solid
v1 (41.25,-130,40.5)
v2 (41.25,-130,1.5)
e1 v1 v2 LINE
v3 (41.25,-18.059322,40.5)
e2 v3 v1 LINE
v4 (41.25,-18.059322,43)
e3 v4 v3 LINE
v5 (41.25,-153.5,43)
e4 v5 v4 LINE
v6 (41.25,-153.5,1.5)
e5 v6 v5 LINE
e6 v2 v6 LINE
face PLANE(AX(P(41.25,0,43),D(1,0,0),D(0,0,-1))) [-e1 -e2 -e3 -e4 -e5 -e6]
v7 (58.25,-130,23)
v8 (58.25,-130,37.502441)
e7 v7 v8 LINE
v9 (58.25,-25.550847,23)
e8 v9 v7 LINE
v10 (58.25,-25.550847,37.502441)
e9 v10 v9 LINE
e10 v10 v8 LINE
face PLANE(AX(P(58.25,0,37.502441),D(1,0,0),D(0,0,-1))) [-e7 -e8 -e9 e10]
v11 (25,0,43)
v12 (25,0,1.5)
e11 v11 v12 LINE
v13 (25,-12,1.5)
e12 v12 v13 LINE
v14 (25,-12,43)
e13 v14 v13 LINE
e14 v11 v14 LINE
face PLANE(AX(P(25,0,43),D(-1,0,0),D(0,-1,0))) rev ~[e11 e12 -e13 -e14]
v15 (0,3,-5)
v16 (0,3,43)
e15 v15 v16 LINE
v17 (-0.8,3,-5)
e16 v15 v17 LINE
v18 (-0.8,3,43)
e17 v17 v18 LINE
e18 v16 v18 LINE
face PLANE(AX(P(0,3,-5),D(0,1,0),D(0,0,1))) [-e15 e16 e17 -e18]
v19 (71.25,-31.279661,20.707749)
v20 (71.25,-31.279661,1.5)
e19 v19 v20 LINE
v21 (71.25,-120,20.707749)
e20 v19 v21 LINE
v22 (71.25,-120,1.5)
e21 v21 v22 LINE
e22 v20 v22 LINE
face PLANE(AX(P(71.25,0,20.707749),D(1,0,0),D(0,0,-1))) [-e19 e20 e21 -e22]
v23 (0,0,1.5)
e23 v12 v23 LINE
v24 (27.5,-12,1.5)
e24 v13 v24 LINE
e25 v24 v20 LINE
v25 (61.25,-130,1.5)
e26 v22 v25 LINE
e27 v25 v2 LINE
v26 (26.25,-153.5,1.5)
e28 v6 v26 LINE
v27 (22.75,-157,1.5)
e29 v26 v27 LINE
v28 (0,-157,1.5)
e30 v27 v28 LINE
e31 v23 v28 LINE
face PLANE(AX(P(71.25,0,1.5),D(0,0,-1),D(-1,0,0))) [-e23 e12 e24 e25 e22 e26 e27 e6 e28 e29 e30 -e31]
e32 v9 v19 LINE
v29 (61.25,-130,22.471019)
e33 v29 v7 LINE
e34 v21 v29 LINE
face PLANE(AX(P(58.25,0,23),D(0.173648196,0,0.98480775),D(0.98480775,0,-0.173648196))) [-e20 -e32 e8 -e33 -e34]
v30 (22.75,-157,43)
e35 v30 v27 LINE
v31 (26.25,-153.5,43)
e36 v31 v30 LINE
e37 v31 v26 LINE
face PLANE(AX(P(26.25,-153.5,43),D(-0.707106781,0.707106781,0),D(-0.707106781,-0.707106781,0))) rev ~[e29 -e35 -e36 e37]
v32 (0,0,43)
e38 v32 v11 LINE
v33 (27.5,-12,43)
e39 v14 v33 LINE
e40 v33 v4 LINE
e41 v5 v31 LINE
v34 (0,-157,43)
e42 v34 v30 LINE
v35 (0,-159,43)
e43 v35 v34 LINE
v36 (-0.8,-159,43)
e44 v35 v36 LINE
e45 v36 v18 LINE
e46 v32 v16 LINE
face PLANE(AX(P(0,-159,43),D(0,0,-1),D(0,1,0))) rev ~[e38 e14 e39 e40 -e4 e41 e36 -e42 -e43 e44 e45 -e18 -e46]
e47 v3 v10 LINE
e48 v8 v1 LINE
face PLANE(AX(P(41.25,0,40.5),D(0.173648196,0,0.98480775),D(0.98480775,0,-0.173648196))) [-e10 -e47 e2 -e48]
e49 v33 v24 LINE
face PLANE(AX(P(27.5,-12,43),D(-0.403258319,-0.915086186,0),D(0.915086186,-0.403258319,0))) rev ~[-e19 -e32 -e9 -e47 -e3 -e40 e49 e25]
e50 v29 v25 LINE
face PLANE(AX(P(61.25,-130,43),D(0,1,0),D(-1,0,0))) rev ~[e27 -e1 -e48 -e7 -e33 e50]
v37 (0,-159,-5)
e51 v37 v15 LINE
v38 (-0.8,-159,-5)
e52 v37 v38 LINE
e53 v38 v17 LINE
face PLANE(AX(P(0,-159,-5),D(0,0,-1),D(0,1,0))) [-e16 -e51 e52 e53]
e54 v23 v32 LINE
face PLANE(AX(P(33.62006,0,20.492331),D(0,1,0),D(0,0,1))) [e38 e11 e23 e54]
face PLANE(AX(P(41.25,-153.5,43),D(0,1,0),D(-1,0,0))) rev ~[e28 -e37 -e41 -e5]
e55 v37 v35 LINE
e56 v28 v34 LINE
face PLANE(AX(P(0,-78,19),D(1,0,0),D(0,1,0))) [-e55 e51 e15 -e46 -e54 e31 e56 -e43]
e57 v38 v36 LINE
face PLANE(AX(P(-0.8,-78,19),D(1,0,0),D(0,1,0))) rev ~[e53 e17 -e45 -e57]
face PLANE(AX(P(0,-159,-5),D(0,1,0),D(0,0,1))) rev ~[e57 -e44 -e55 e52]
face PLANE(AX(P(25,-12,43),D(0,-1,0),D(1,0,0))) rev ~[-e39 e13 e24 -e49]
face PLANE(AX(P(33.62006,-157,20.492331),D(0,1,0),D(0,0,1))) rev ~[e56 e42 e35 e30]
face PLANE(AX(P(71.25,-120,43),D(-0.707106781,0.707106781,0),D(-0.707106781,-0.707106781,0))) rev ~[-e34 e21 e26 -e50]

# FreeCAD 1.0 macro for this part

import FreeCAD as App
import Part
import Sketcher
Q = App.Units.Quantity

doc = App.newDocument("Part")
body = doc.addObject("PartDesign::Body", "Body")

sketch1 = body.newObject("Sketcher::SketchObject", "Sketch")
sketch1.AttachmentSupport = (doc.getObject("YZ_Plane"), [""])
sketch1.MapMode = "FlatFace"
sketch1.addGeometry([
    Part.LineSegment(App.Vector(-159, 43, 0), App.Vector(-159, -5, 0)),
    Part.LineSegment(App.Vector(-159, -5, 0), App.Vector(3, -5, 0)),
    Part.LineSegment(App.Vector(3, -5, 0), App.Vector(3, 43, 0)),
    Part.LineSegment(App.Vector(3, 43, 0), App.Vector(-159, 43, 0)),
], False)
sketch1.addConstraint([
    Sketcher.Constraint("Coincident", 0, 2, 1, 1),
    Sketcher.Constraint("Coincident", 1, 2, 2, 1),
    Sketcher.Constraint("Coincident", 2, 2, 3, 1),
    Sketcher.Constraint("Coincident", 3, 2, 0, 1),
    Sketcher.Constraint("Vertical", 0),
    Sketcher.Constraint("Horizontal", 1),
    Sketcher.Constraint("Vertical", 2),
    Sketcher.Constraint("Horizontal", 3),
    Sketcher.Constraint("DistanceX", 1, 1, 1, 2, Q("162 mm")),
    Sketcher.Constraint("DistanceY", 0, 2, 0, 1, Q("48 mm")),
    Sketcher.Constraint("DistanceX", 0, 2, -1, 1, Q("159 mm")),
    Sketcher.Constraint("DistanceY", 0, 2, -1, 1, Q("5 mm")),
])
pad1 = body.newObject("PartDesign::Pad", "Pad")
pad1.Profile = sketch1
pad1.Length = 0.8
pad1.Reversed = True

sketch2 = body.newObject("Sketcher::SketchObject", "Sketch001")
sketch2.AttachmentSupport = (doc.getObject("XZ_Plane"), [""])
sketch2.MapMode = "FlatFace"
sketch2.addGeometry([
    Part.LineSegment(App.Vector(0, 1.5, 0), App.Vector(0, 43, 0)),
    Part.LineSegment(App.Vector(0, 43, 0), App.Vector(41.2, 43, 0)),
    Part.LineSegment(App.Vector(41.2, 43, 0), App.Vector(41.2, 40.5, 0)),
    Part.LineSegment(App.Vector(41.2, 40.5, 0), App.Vector(58.2, 37.5, 0)),
    Part.LineSegment(App.Vector(58.2, 37.5, 0), App.Vector(58.2, 23, 0)),
    Part.LineSegment(App.Vector(58.2, 23, 0), App.Vector(71.2, 20.7, 0)),
    Part.LineSegment(App.Vector(71.2, 20.7, 0), App.Vector(71.2, 1.5, 0)),
    Part.LineSegment(App.Vector(71.2, 1.5, 0), App.Vector(0, 1.5, 0)),
], False)
sketch2.addConstraint([
    Sketcher.Constraint("Coincident", 0, 2, 1, 1),
    Sketcher.Constraint("Coincident", 1, 2, 2, 1),
    Sketcher.Constraint("Coincident", 2, 2, 3, 1),
    Sketcher.Constraint("Coincident", 3, 2, 4, 1),
    Sketcher.Constraint("Coincident", 4, 2, 5, 1),
    Sketcher.Constraint("Coincident", 5, 2, 6, 1),
    Sketcher.Constraint("Coincident", 6, 2, 7, 1),
    Sketcher.Constraint("Coincident", 7, 2, 0, 1),
    Sketcher.Constraint("Vertical", 0),
    Sketcher.Constraint("Horizontal", 1),
    Sketcher.Constraint("Vertical", 2),
    Sketcher.Constraint("Vertical", 4),
    Sketcher.Constraint("Vertical", 6),
    Sketcher.Constraint("Horizontal", 7),
    Sketcher.Constraint("PointOnObject", 0, 2, -2),
    Sketcher.Constraint("Parallel", 3, 5),
    Sketcher.Constraint("Angle", 3, Q("-10.000001 deg")),
    Sketcher.Constraint("DistanceY", 0, 1, 0, 2, Q("41.5 mm")),
    Sketcher.Constraint("DistanceY", 2, 2, 2, 1, Q("2.5 mm")),
    Sketcher.Constraint("DistanceY", -1, 1, 0, 2, Q("43 mm")),
    Sketcher.Constraint("DistanceY", -1, 1, 4, 2, Q("23 mm")),
    Sketcher.Constraint("DistanceX", 2, 2, 3, 2, Q("17 mm")),
    Sketcher.Constraint("DistanceX", 4, 2, 5, 2, Q("13 mm")),
    Sketcher.Constraint("DistanceX", 1, 1, 1, 2, Q("41.25 mm")),
])
pad2 = body.newObject("PartDesign::Pad", "Pad001")
pad2.Profile = sketch2
pad2.Length = 157

sketch3 = body.newObject("Sketcher::SketchObject", "Sketch002")
sketch3.AttachmentSupport = (doc.getObject("XY_Plane"), [""])
sketch3.MapMode = "FlatFace"
sketch3.AttachmentOffset = App.Placement(App.Vector(0, 0, 43), App.Rotation())
sketch3.addGeometry([
    Part.LineSegment(App.Vector(25, 0, 0), App.Vector(25, -12, 0)),
    Part.LineSegment(App.Vector(25, -12, 0), App.Vector(27.5, -12, 0)),
    Part.LineSegment(App.Vector(27.5, -12, 0), App.Vector(71.8, -31.5, 0)),
    Part.LineSegment(App.Vector(71.8, -31.5, 0), App.Vector(71.8, 0, 0)),
    Part.LineSegment(App.Vector(71.8, 0, 0), App.Vector(25, 0, 0)),
    Part.LineSegment(App.Vector(22.8, -157, 0), App.Vector(71.2, -157, 0)),
    Part.LineSegment(App.Vector(71.2, -157, 0), App.Vector(71.2, -120, 0)),
    Part.LineSegment(App.Vector(71.2, -120, 0), App.Vector(61.2, -130, 0)),
    Part.LineSegment(App.Vector(61.2, -130, 0), App.Vector(41.2, -130, 0)),
    Part.LineSegment(App.Vector(41.2, -130, 0), App.Vector(41.2, -153.5, 0)),
    Part.LineSegment(App.Vector(41.2, -153.5, 0), App.Vector(26.2, -153.5, 0)),
    Part.LineSegment(App.Vector(26.2, -153.5, 0), App.Vector(22.8, -157, 0)),
], False)
sketch3.addConstraint([
    Sketcher.Constraint("Coincident", 0, 2, 1, 1),
    Sketcher.Constraint("Coincident", 1, 2, 2, 1),
    Sketcher.Constraint("Coincident", 2, 2, 3, 1),
    Sketcher.Constraint("Coincident", 3, 2, 4, 1),
    Sketcher.Constraint("Coincident", 4, 2, 0, 1),
    Sketcher.Constraint("Coincident", 5, 2, 6, 1),
    Sketcher.Constraint("Coincident", 6, 2, 7, 1),
    Sketcher.Constraint("Coincident", 7, 2, 8, 1),
    Sketcher.Constraint("Coincident", 8, 2, 9, 1),
    Sketcher.Constraint("Coincident", 9, 2, 10, 1),
    Sketcher.Constraint("Coincident", 10, 2, 11, 1),
    Sketcher.Constraint("Coincident", 11, 2, 5, 1),
    Sketcher.Constraint("Vertical", 0),
    Sketcher.Constraint("Horizontal", 1),
    Sketcher.Constraint("Vertical", 3),
    Sketcher.Constraint("Horizontal", 4),
    Sketcher.Constraint("Horizontal", 5),
    Sketcher.Constraint("Vertical", 6),
    Sketcher.Constraint("Horizontal", 8),
    Sketcher.Constraint("Vertical", 9),
    Sketcher.Constraint("Horizontal", 10),
    Sketcher.Constraint("PointOnObject", 3, 2, -1),
    Sketcher.Constraint("Parallel", 7, 11),
    Sketcher.Constraint("DistanceX", 8, 2, 8, 1, Q("20 mm")),
    Sketcher.Constraint("DistanceX", 10, 2, 10, 1, Q("15 mm")),
    Sketcher.Constraint("DistanceY", 0, 2, 0, 1, Q("12 mm")),
    Sketcher.Constraint("DistanceY", 6, 1, 6, 2, Q("37 mm")),
    Sketcher.Constraint("Angle", 7, Q("-135 deg")),
    Sketcher.Constraint("DistanceX", 1, 1, 1, 2, Q("2.5 mm")),
    Sketcher.Constraint("DistanceX", 5, 1, 5, 2, Q("48.5 mm")),
    Sketcher.Constraint("DistanceY", 3, 1, 3, 2, Q("31.5 mm")),
    Sketcher.Constraint("DistanceX", -1, 1, 0, 2, Q("25 mm")),
    Sketcher.Constraint("DistanceY", 5, 2, -1, 1, Q("157 mm")),
    Sketcher.Constraint("DistanceY", 7, 2, -1, 1, Q("130 mm")),
    Sketcher.Constraint("DistanceX", 4, 2, 4, 1, Q("46.75 mm")),
    Sketcher.Constraint("DistanceX", 5, 2, 2, 2, Q("0.5 mm")),
])
pocket1 = body.newObject("PartDesign::Pocket", "Pocket")
pocket1.Profile = sketch3
pocket1.Length = 41.5

doc.recompute()
